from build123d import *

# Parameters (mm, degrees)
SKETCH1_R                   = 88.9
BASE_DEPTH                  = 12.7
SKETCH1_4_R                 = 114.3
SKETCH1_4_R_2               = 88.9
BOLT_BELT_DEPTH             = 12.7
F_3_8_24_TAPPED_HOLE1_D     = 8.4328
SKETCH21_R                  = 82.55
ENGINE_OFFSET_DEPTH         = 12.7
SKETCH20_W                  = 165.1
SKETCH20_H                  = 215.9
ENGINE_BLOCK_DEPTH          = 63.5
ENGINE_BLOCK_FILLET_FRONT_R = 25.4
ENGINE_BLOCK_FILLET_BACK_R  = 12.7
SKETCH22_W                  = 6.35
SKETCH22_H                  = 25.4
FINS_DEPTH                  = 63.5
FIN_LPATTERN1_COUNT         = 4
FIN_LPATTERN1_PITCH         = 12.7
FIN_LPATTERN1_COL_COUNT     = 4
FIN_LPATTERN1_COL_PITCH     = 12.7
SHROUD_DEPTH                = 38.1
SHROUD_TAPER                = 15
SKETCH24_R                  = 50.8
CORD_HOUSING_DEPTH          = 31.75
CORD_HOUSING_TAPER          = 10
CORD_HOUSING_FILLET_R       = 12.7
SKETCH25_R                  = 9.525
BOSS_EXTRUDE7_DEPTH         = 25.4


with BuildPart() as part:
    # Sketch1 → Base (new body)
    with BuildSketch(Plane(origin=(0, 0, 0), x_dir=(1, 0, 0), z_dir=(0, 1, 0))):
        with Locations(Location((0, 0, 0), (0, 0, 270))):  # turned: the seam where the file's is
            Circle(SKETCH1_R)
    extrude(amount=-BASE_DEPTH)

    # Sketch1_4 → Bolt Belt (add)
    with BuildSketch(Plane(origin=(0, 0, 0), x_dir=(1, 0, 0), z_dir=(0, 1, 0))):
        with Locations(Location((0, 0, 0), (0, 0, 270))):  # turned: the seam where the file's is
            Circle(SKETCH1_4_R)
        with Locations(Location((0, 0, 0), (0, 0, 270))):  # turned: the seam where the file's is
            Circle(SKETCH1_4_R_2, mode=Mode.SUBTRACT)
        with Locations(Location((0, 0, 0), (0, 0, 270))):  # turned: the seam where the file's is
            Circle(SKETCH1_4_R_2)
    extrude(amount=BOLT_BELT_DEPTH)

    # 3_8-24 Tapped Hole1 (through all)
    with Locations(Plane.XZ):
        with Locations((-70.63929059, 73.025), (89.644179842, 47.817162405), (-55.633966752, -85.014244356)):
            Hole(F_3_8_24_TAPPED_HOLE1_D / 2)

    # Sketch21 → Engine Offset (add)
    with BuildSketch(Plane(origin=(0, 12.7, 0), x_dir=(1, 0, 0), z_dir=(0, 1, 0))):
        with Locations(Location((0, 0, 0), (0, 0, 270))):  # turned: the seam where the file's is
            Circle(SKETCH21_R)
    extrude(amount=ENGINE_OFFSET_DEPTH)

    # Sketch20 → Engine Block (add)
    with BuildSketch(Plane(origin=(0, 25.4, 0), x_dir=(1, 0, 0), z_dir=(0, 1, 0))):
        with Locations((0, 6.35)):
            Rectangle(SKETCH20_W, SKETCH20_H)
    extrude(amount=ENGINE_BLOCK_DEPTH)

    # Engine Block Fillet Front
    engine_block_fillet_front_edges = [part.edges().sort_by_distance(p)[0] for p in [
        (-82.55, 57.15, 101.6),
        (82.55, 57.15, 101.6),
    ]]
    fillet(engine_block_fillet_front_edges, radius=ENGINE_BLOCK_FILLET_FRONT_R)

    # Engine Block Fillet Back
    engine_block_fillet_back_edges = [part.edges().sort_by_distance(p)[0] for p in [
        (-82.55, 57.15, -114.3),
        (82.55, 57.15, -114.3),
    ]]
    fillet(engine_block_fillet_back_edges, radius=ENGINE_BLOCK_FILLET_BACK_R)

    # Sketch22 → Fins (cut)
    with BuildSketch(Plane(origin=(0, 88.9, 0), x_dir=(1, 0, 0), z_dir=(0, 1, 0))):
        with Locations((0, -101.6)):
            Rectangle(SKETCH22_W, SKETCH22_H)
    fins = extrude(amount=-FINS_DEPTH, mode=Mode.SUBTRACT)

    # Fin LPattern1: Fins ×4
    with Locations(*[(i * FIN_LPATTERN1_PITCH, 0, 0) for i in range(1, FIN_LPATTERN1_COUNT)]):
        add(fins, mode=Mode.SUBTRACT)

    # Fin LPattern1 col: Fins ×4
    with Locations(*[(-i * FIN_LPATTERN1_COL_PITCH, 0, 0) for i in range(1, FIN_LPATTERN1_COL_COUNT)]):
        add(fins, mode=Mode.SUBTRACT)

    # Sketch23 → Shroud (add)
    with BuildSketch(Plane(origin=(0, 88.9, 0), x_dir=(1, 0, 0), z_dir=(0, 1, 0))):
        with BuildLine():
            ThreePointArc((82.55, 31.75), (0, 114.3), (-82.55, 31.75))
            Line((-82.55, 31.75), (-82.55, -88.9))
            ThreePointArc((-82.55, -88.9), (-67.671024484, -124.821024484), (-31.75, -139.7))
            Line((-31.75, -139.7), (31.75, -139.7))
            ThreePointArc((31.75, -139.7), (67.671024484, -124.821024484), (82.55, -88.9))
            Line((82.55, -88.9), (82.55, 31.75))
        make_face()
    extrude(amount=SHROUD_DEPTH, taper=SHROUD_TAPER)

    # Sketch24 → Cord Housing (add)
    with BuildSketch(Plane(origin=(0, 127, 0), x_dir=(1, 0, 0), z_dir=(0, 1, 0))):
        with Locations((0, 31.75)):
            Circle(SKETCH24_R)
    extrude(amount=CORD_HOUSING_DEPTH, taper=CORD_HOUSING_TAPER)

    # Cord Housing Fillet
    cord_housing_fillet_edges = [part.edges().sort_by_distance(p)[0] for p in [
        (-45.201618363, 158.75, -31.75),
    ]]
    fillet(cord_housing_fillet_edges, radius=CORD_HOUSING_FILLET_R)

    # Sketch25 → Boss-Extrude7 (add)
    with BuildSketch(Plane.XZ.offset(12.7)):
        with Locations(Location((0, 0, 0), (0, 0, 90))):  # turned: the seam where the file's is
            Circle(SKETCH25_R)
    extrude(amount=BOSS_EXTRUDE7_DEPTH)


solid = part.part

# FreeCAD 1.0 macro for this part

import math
import FreeCAD as App
import Part
import Sketcher
Q = App.Units.Quantity


def edges_at(feature, points):
    """Names of the edges that pass closest to the given points."""
    edges = feature.Shape.Edges
    near = lambda p: min(range(len(edges)), key=lambda i: edges[i].distToShape(Part.Vertex(*p))[0])
    return sorted({f"Edge{near(p) + 1}" for p in points})

doc = App.newDocument("Part")
params = doc.addObject("Spreadsheet::Sheet", "Params")
for row, (alias, value) in enumerate([
    ("sketch1_diameter", "7 in"),
    ("pad1_length", "0.5 in"),
    ("sketch2_diameter", "9 in"),
    ("pad2_length", "0.5 in"),
    ("sketch3_diameter", "0.332 in"),
    ("hole_diameter", "0.332 in"),
    ("sketch4_diameter", "6.5 in"),
    ("pad3_length", "0.5 in"),
    ("sketch5_width", "6.5 in"),
    ("sketch5_height", "8.5 in"),
    ("pad4_length", "2.5 in"),
    ("fillet_radius", "1 in"),
    ("fillet2_radius", "0.5 in"),
    ("sketch6_height", "1 in"),
    ("sketch6_width", "0.25 in"),
    ("pocket1_length", "2.5 in"),
    ("linearpattern_pitch", "0.5 in"),
    ("linearpattern2_pitch", "0.5 in"),
    ("sketch7_radius", "2 in"),
    ("sketch7_radius2", "3.25 in"),
    ("sketch7_height", "4.75 in"),
    ("pad5_length", "1.5 in"),
    ("pad5_taper", "-15 deg"),
    ("sketch8_diameter", "4 in"),
    ("pad6_length", "1.25 in"),
    ("pad6_taper", "-10 deg"),
    ("fillet3_radius", "0.5 in"),
    ("sketch9_diameter", "0.75 in"),
    ("pad7_length", "1 in"),
], start=1):
    params.set(f"A{row}", alias)
    params.set(f"B{row}", "=" + value)
    params.setAlias(f"B{row}", alias)

body = doc.addObject("PartDesign::Body", "Body")

# Sketch on XZ plane
sketch1 = doc.addObject("Sketcher::SketchObject", "Sketch")
body.addObject(sketch1)
sketch1.AttachmentSupport = (doc.XZ_Plane, [""])
sketch1.MapMode = "FlatFace"
sketch1.addGeometry(Part.Circle(App.Vector(0, 0, 0), App.Vector(0, 0, 1), 88.9), False)
sketch1.addConstraint([
    Sketcher.Constraint("Coincident", 0, 3, -1, 1),
    Sketcher.Constraint("Diameter", 0, Q("7 in")),
])
sketch1.setExpression("Constraints[1]", "Params.sketch1_diameter")
pad1 = doc.addObject("PartDesign::Pad", "Pad")
body.addObject(pad1)
pad1.Profile = sketch1
pad1.setExpression("Length", "Params.pad1_length")

# Sketch on XZ plane
sketch2 = doc.addObject("Sketcher::SketchObject", "Sketch001")
body.addObject(sketch2)
sketch2.AttachmentSupport = (doc.XZ_Plane, [""])
sketch2.MapMode = "FlatFace"
sketch2.addGeometry(Part.Circle(App.Vector(0, 0, 0), App.Vector(0, 0, 1), 114.3), False)
sketch2.addConstraint([
    Sketcher.Constraint("Coincident", 0, 3, -1, 1),
    Sketcher.Constraint("Diameter", 0, Q("9 in")),
])
sketch2.setExpression("Constraints[1]", "Params.sketch2_diameter")
pad2 = doc.addObject("PartDesign::Pad", "Pad001")
body.addObject(pad2)
pad2.Profile = sketch2
pad2.setExpression("Length", "Params.pad2_length")
pad2.Reversed = True

# Sketch on XZ plane
sketch3 = doc.addObject("Sketcher::SketchObject", "Sketch002")
body.addObject(sketch3)
sketch3.AttachmentSupport = (doc.XZ_Plane, [""])
sketch3.MapMode = "FlatFace"
sketch3.addGeometry([
    Part.Circle(App.Vector(-70.639291, 73.025, 0), App.Vector(0, 0, 1), 4.2164),
    Part.Circle(App.Vector(89.64418, 47.817162, 0), App.Vector(0, 0, 1), 4.2164),
    Part.Circle(App.Vector(-55.633967, -85.014244, 0), App.Vector(0, 0, 1), 4.2164),
], False)
sketch3.addConstraint([
    Sketcher.Constraint("Equal", 0, 1),
    Sketcher.Constraint("Equal", 1, 2),
    Sketcher.Constraint("Diameter", 0, Q("0.332 in")),
    Sketcher.Constraint("DistanceY", -1, 1, 0, 3, Q("2.875 in")),
    Sketcher.Constraint("DistanceX", 0, 3, -1, 1, Q("70.639291 mm")),
    Sketcher.Constraint("DistanceX", -1, 1, 1, 3, Q("89.64418 mm")),
    Sketcher.Constraint("DistanceY", -1, 1, 1, 3, Q("47.817162 mm")),
    Sketcher.Constraint("DistanceX", 2, 3, -1, 1, Q("55.633967 mm")),
    Sketcher.Constraint("DistanceY", 2, 3, -1, 1, Q("85.014244 mm")),
])
sketch3.setExpression("Constraints[2]", "Params.sketch3_diameter")
doc.recompute()
hole = doc.addObject("PartDesign::Hole", "Hole")
body.addObject(hole)
hole.Profile = sketch3
hole.ThreadType = "None"
hole.setExpression("Diameter", "Params.hole_diameter")
hole.DepthType = "ThroughAll"

# Sketch on XZ plane
sketch4 = doc.addObject("Sketcher::SketchObject", "Sketch003")
body.addObject(sketch4)
sketch4.AttachmentSupport = (doc.XZ_Plane, [""])
sketch4.MapMode = "FlatFace"
sketch4.AttachmentOffset = App.Placement(App.Vector(0, 0, -0.5 * 25.4), App.Rotation())
sketch4.addGeometry(Part.Circle(App.Vector(0, 0, 0), App.Vector(0, 0, 1), 82.55), False)
sketch4.addConstraint([
    Sketcher.Constraint("Coincident", 0, 3, -1, 1),
    Sketcher.Constraint("Diameter", 0, Q("6.5 in")),
])
sketch4.setExpression("Constraints[1]", "Params.sketch4_diameter")
pad3 = doc.addObject("PartDesign::Pad", "Pad002")
body.addObject(pad3)
pad3.Profile = sketch4
pad3.setExpression("Length", "Params.pad3_length")
pad3.Reversed = True

# Sketch on XZ plane
sketch5 = doc.addObject("Sketcher::SketchObject", "Sketch004")
body.addObject(sketch5)
sketch5.AttachmentSupport = (doc.XZ_Plane, [""])
sketch5.MapMode = "FlatFace"
sketch5.AttachmentOffset = App.Placement(App.Vector(0, 0, -1 * 25.4), App.Rotation())
sketch5.addGeometry([
    Part.LineSegment(App.Vector(-82.55, -114.3, 0), App.Vector(-82.55, 101.6, 0)),
    Part.LineSegment(App.Vector(-82.55, 101.6, 0), App.Vector(82.55, 101.6, 0)),
    Part.LineSegment(App.Vector(82.55, 101.6, 0), App.Vector(82.55, -114.3, 0)),
    Part.LineSegment(App.Vector(82.55, -114.3, 0), App.Vector(-82.55, -114.3, 0)),
], False)
sketch5.addConstraint([
    Sketcher.Constraint("Coincident", 0, 2, 1, 1),
    Sketcher.Constraint("Coincident", 1, 2, 2, 1),
    Sketcher.Constraint("Coincident", 2, 2, 3, 1),
    Sketcher.Constraint("Coincident", 3, 2, 0, 1),
    Sketcher.Constraint("Vertical", 0),
    Sketcher.Constraint("Horizontal", 1),
    Sketcher.Constraint("Vertical", 2),
    Sketcher.Constraint("Horizontal", 3),
    Sketcher.Constraint("DistanceX", 1, 1, 1, 2, Q("6.5 in")),
    Sketcher.Constraint("DistanceY", 0, 1, 0, 2, Q("8.5 in")),
    Sketcher.Constraint("DistanceY", -1, 1, 0, 2, Q("4 in")),
    Sketcher.Constraint("DistanceX", 0, 2, -1, 1, Q("3.25 in")),
])
sketch5.setExpression("Constraints[8]", "Params.sketch5_width")
sketch5.setExpression("Constraints[9]", "Params.sketch5_height")
pad4 = doc.addObject("PartDesign::Pad", "Pad003")
body.addObject(pad4)
pad4.Profile = sketch5
pad4.setExpression("Length", "Params.pad4_length")
pad4.Reversed = True
doc.recompute()

fillet = doc.addObject("PartDesign::Fillet", "Fillet")
body.addObject(fillet)
fillet.Base = (pad4, edges_at(pad4, [(-82.55, 57.15, 101.6), (82.55, 57.15, 101.6)]))
fillet.setExpression("Radius", "Params.fillet_radius")
doc.recompute()

fillet2 = doc.addObject("PartDesign::Fillet", "Fillet001")
body.addObject(fillet2)
fillet2.Base = (fillet, edges_at(fillet, [(-82.55, 57.15, -114.3), (82.55, 57.15, -114.3)]))
fillet2.setExpression("Radius", "Params.fillet2_radius")

# Sketch on XZ plane
sketch6 = doc.addObject("Sketcher::SketchObject", "Sketch005")
body.addObject(sketch6)
sketch6.AttachmentSupport = (doc.XZ_Plane, [""])
sketch6.MapMode = "FlatFace"
sketch6.AttachmentOffset = App.Placement(App.Vector(0, 0, -3.5 * 25.4), App.Rotation())
sketch6.addGeometry([
    Part.LineSegment(App.Vector(-3.175, 88.9, 0), App.Vector(-3.175, 114.3, 0)),
    Part.LineSegment(App.Vector(-3.175, 114.3, 0), App.Vector(3.175, 114.3, 0)),
    Part.LineSegment(App.Vector(3.175, 114.3, 0), App.Vector(3.175, 88.9, 0)),
    Part.LineSegment(App.Vector(3.175, 88.9, 0), App.Vector(-3.175, 88.9, 0)),
], False)
sketch6.addConstraint([
    Sketcher.Constraint("Coincident", 0, 2, 1, 1),
    Sketcher.Constraint("Coincident", 1, 2, 2, 1),
    Sketcher.Constraint("Coincident", 2, 2, 3, 1),
    Sketcher.Constraint("Coincident", 3, 2, 0, 1),
    Sketcher.Constraint("Vertical", 0),
    Sketcher.Constraint("Horizontal", 1),
    Sketcher.Constraint("Vertical", 2),
    Sketcher.Constraint("Horizontal", 3),
    Sketcher.Constraint("DistanceY", 0, 1, 0, 2, Q("1 in")),
    Sketcher.Constraint("DistanceX", 1, 1, 1, 2, Q("0.25 in")),
    Sketcher.Constraint("DistanceY", -1, 1, 0, 2, Q("4.5 in")),
    Sketcher.Constraint("DistanceX", 0, 2, -1, 1, Q("0.125 in")),
])
sketch6.setExpression("Constraints[8]", "Params.sketch6_height")
sketch6.setExpression("Constraints[9]", "Params.sketch6_width")
pocket1 = doc.addObject("PartDesign::Pocket", "Pocket")
body.addObject(pocket1)
pocket1.Profile = sketch6
pocket1.setExpression("Length", "Params.pocket1_length")
pocket1.Reversed = True
doc.recompute()

linearpattern = doc.addObject("PartDesign::LinearPattern", "LinearPattern")
body.addObject(linearpattern)
linearpattern.Originals = [pocket1]
linearpattern.Direction = (doc.X_Axis, [""])
linearpattern.Mode = "offset"
linearpattern.setExpression("Offset", "Params.linearpattern_pitch")
linearpattern.Occurrences = 4
body.Tip = linearpattern
doc.recompute()

linearpattern2 = doc.addObject("PartDesign::LinearPattern", "LinearPattern001")
body.addObject(linearpattern2)
linearpattern2.Originals = [pocket1]
linearpattern2.Direction = (doc.X_Axis, [""])
linearpattern2.Mode = "offset"
linearpattern2.setExpression("Offset", "Params.linearpattern2_pitch")
linearpattern2.Occurrences = 4
linearpattern2.Reversed = True
body.Tip = linearpattern2

# Sketch on XZ plane
sketch7 = doc.addObject("Sketcher::SketchObject", "Sketch006")
body.addObject(sketch7)
sketch7.AttachmentSupport = (doc.XZ_Plane, [""])
sketch7.MapMode = "FlatFace"
sketch7.AttachmentOffset = App.Placement(App.Vector(0, 0, -3.5 * 25.4), App.Rotation())
sketch7.addGeometry([
    Part.ArcOfCircle(Part.Circle(App.Vector(0, -31.75, 0), App.Vector(0, 0, 1), 82.55), math.radians(180), math.radians(360)),  # 0
    Part.LineSegment(App.Vector(-82.55, -31.75, 0), App.Vector(-82.55, 88.9, 0)),  # 1
    Part.ArcOfCircle(Part.Circle(App.Vector(-31.75, 88.9, 0), App.Vector(0, 0, 1), 50.8), math.radians(90), math.radians(180)),  # 2
    Part.LineSegment(App.Vector(-31.75, 139.7, 0), App.Vector(31.75, 139.7, 0)),  # 3
    Part.ArcOfCircle(Part.Circle(App.Vector(31.75, 88.9, 0), App.Vector(0, 0, 1), 50.8), math.radians(0), math.radians(90)),  # 4
    Part.LineSegment(App.Vector(82.55, 88.9, 0), App.Vector(82.55, -31.75, 0)),  # 5
], False)
sketch7.addConstraint([
    Sketcher.Constraint("Tangent", 0, 1, 1, 1),
    Sketcher.Constraint("Tangent", 1, 2, 2, 2),
    Sketcher.Constraint("Tangent", 2, 1, 3, 1),
    Sketcher.Constraint("Tangent", 3, 2, 4, 2),
    Sketcher.Constraint("Tangent", 4, 1, 5, 1),
    Sketcher.Constraint("Tangent", 5, 2, 0, 2),
    Sketcher.Constraint("Vertical", 1),
    Sketcher.Constraint("Horizontal", 3),
    Sketcher.Constraint("Vertical", 5),
    Sketcher.Constraint("Equal", 2, 4),
    Sketcher.Constraint("PointOnObject", 0, 3, -2),
    Sketcher.Constraint("Radius", 2, Q("2 in")),
    Sketcher.Constraint("Radius", 0, Q("3.25 in")),
    Sketcher.Constraint("DistanceY", 1, 1, 1, 2, Q("4.75 in")),
    Sketcher.Constraint("DistanceY", -1, 1, 2, 3, Q("3.5 in")),
])
sketch7.setExpression("Constraints[11]", "Params.sketch7_radius")
sketch7.setExpression("Constraints[12]", "Params.sketch7_radius2")
sketch7.setExpression("Constraints[13]", "Params.sketch7_height")
pad5 = doc.addObject("PartDesign::Pad", "Pad004")
body.addObject(pad5)
pad5.Profile = sketch7
pad5.setExpression("Length", "Params.pad5_length")
pad5.Reversed = True
pad5.setExpression("TaperAngle", "Params.pad5_taper")

# Sketch on XZ plane
sketch8 = doc.addObject("Sketcher::SketchObject", "Sketch007")
body.addObject(sketch8)
sketch8.AttachmentSupport = (doc.XZ_Plane, [""])
sketch8.MapMode = "FlatFace"
sketch8.AttachmentOffset = App.Placement(App.Vector(0, 0, -5 * 25.4), App.Rotation())
sketch8.addGeometry(Part.Circle(App.Vector(0, -31.75, 0), App.Vector(0, 0, 1), 50.8), False)
sketch8.addConstraint([
    Sketcher.Constraint("PointOnObject", 0, 3, -2),
    Sketcher.Constraint("Diameter", 0, Q("4 in")),
    Sketcher.Constraint("DistanceY", 0, 3, -1, 1, Q("1.25 in")),
])
sketch8.setExpression("Constraints[1]", "Params.sketch8_diameter")
pad6 = doc.addObject("PartDesign::Pad", "Pad005")
body.addObject(pad6)
pad6.Profile = sketch8
pad6.setExpression("Length", "Params.pad6_length")
pad6.Reversed = True
pad6.setExpression("TaperAngle", "Params.pad6_taper")
doc.recompute()

fillet3 = doc.addObject("PartDesign::Fillet", "Fillet002")
body.addObject(fillet3)
fillet3.Base = (pad6, edges_at(pad6, [(-45.202, 158.75, -31.75)]))
fillet3.setExpression("Radius", "Params.fillet3_radius")

# Sketch on XZ plane
sketch9 = doc.addObject("Sketcher::SketchObject", "Sketch008")
body.addObject(sketch9)
sketch9.AttachmentSupport = (doc.XZ_Plane, [""])
sketch9.MapMode = "FlatFace"
sketch9.AttachmentOffset = App.Placement(App.Vector(0, 0, 0.5 * 25.4), App.Rotation())
sketch9.addGeometry(Part.Circle(App.Vector(0, 0, 0), App.Vector(0, 0, 1), 9.525), False)
sketch9.addConstraint([
    Sketcher.Constraint("Coincident", 0, 3, -1, 1),
    Sketcher.Constraint("Diameter", 0, Q("0.75 in")),
])
sketch9.setExpression("Constraints[1]", "Params.sketch9_diameter")
pad7 = doc.addObject("PartDesign::Pad", "Pad006")
body.addObject(pad7)
pad7.Profile = sketch9
pad7.setExpression("Length", "Params.pad7_length")

doc.recompute()
